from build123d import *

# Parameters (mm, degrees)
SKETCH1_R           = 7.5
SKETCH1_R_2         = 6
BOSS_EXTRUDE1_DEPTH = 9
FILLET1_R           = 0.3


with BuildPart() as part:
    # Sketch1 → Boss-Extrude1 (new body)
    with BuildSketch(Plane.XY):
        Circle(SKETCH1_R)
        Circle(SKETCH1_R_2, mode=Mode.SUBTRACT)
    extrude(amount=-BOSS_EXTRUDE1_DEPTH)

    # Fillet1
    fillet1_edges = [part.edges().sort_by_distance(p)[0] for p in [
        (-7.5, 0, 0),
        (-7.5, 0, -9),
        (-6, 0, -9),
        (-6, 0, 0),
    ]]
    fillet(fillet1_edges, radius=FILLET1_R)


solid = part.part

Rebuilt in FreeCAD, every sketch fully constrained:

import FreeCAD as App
import Part
import Sketcher
Q = App.Units.Quantity


def edges_at(feature, points):
    """Names of the edges that pass closest to the given points."""
    edges = feature.Shape.Edges
    near = lambda p: min(range(len(edges)), key=lambda i: edges[i].distToShape(Part.Vertex(*p))[0])
    return sorted({f"Edge{near(p) + 1}" for p in points})

doc = App.newDocument("Part")
params = doc.addObject("Spreadsheet::Sheet", "Params")
for row, (alias, value) in enumerate([
    ("sketch1_diameter", "15 mm"),
    ("sketch1_diameter2", "12 mm"),
    ("pad1_length", "9 mm"),
    ("fillet_radius", "0.3 mm"),
], start=1):
    params.set(f"A{row}", alias)
    params.set(f"B{row}", "=" + value)
    params.setAlias(f"B{row}", alias)

body = doc.addObject("PartDesign::Body", "Body")

sketch1 = doc.addObject("Sketcher::SketchObject", "Sketch")
body.addObject(sketch1)
sketch1.AttachmentSupport = (doc.XY_Plane, [""])
sketch1.MapMode = "FlatFace"
sketch1.addGeometry(Part.Circle(App.Vector(0, 0, 0), App.Vector(0, 0, 1), 8), False)
sketch1.addGeometry(Part.Circle(App.Vector(0, 0, 0), App.Vector(0, 0, 1), 6), False)
sketch1.addConstraint(Sketcher.Constraint("Coincident", 0, 3, -1, 1))
sketch1.addConstraint(Sketcher.Constraint("Coincident", 1, 3, -1, 1))
sketch1.addConstraint(Sketcher.Constraint("Diameter", 0, Q("15 mm")))
sketch1.addConstraint(Sketcher.Constraint("Diameter", 1, Q("12 mm")))
sketch1.setExpression("Constraints[2]", "Params.sketch1_diameter")
sketch1.setExpression("Constraints[3]", "Params.sketch1_diameter2")
pad1 = doc.addObject("PartDesign::Pad", "Pad")
body.addObject(pad1)
pad1.Profile = sketch1
pad1.setExpression("Length", "Params.pad1_length")
pad1.Reversed = True
doc.recompute()

fillet = doc.addObject("PartDesign::Fillet", "Fillet")
body.addObject(fillet)
fillet.Base = (pad1, edges_at(pad1, [
    (-7.5, 0, 0),
    (-7.5, 0, -9),
    (-6, 0, -9),
    (-6, 0, 0),
]))
fillet.setExpression("Radius", "Params.fillet_radius")

doc.recompute()
